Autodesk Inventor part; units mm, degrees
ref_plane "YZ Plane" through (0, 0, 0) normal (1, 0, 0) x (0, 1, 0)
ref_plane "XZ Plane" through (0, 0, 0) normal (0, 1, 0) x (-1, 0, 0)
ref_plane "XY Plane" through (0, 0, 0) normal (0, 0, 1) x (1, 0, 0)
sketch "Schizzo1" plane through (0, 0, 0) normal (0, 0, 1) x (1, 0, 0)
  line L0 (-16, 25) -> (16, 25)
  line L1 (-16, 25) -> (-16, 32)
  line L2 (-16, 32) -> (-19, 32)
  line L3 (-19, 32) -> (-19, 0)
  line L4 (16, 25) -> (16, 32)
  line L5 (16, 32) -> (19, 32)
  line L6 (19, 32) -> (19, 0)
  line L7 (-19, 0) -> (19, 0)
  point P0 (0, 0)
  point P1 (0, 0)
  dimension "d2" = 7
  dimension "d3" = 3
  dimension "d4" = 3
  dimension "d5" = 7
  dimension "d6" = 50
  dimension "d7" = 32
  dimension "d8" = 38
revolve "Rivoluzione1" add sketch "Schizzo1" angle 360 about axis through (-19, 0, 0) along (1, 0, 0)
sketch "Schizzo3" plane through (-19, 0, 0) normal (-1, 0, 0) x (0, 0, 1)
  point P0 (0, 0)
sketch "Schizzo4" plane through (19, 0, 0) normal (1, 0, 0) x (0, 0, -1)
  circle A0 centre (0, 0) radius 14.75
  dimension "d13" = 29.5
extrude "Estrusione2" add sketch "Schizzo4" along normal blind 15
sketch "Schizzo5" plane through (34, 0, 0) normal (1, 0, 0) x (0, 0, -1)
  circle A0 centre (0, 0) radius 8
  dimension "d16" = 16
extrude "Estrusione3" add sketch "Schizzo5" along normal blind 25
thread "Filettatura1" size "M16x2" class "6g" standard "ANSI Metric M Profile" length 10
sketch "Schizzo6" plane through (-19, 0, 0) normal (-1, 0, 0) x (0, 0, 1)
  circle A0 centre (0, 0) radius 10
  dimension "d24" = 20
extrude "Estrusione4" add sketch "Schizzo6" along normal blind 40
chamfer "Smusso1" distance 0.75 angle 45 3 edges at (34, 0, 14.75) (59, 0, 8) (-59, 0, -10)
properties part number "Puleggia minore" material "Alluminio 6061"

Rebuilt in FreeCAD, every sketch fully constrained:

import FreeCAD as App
import Part
import Sketcher
from FreeCAD import Vector


def edges_at(feature, points):
    """Names of the edges that pass closest to the given points."""
    edges = feature.Shape.Edges
    near = lambda p: min(range(len(edges)), key=lambda i: edges[i].distToShape(Part.Vertex(*p))[0])
    return sorted({f"Edge{near(p) + 1}" for p in points})

doc = App.newDocument("Part")
body = doc.addObject("PartDesign::Body", "Body")

# Sketch on XY plane
sketch1 = body.newObject("Sketcher::SketchObject", "Sketch")
sketch1.AttachmentSupport = (doc.getObject("XY_Plane"), [""])
sketch1.MapMode = "FlatFace"
sketch1.addGeometry([
    Part.LineSegment(Vector(16, 25, 0), Vector(-16, 25, 0)),  # 0
    Part.LineSegment(Vector(-16, 25, 0), Vector(-16, 32, 0)),  # 1
    Part.LineSegment(Vector(-16, 32, 0), Vector(-19, 32, 0)),  # 2
    Part.LineSegment(Vector(-19, 32, 0), Vector(-19, 0, 0)),  # 3
    Part.LineSegment(Vector(-19, 0, 0), Vector(19, 0, 0)),  # 4
    Part.LineSegment(Vector(19, 0, 0), Vector(19, 32, 0)),  # 5
    Part.LineSegment(Vector(19, 32, 0), Vector(16, 32, 0)),  # 6
    Part.LineSegment(Vector(16, 32, 0), Vector(16, 25, 0)),  # 7
], False)
sketch1.addConstraint([
    Sketcher.Constraint("Coincident", 0, 2, 1, 1),
    Sketcher.Constraint("Coincident", 1, 2, 2, 1),
    Sketcher.Constraint("Coincident", 2, 2, 3, 1),
    Sketcher.Constraint("Coincident", 3, 2, 4, 1),
    Sketcher.Constraint("Coincident", 4, 2, 5, 1),
    Sketcher.Constraint("Coincident", 5, 2, 6, 1),
    Sketcher.Constraint("Coincident", 6, 2, 7, 1),
    Sketcher.Constraint("Coincident", 7, 2, 0, 1),
    Sketcher.Constraint("Horizontal", 0),
    Sketcher.Constraint("Vertical", 1),
    Sketcher.Constraint("Horizontal", 2),
    Sketcher.Constraint("Vertical", 3),
    Sketcher.Constraint("Horizontal", 4),
    Sketcher.Constraint("Vertical", 5),
    Sketcher.Constraint("Horizontal", 6),
    Sketcher.Constraint("Vertical", 7),
    Sketcher.Constraint("Symmetric", 3, 2, 4, 2, -1, 1),
    Sketcher.Constraint("Symmetric", 1, 2, 6, 2, -2),
    Sketcher.Constraint("Equal", 0, 3),
    Sketcher.Constraint("DistanceX", 0, 2, 0, 1, 32.0),
    Sketcher.Constraint("DistanceX", 2, 2, 2, 1, 3.0),
    Sketcher.Constraint("DistanceY", 1, 1, 1, 2, 7.0),
])
revolution = body.newObject("PartDesign::Revolution", "Revolution")
revolution.Profile = sketch1
revolution.ReferenceAxis = (sketch1, ["H_Axis"])
revolution.Angle = 360

# Sketch on YZ plane
sketch2 = body.newObject("Sketcher::SketchObject", "Sketch001")
sketch2.AttachmentSupport = (doc.getObject("YZ_Plane"), [""])
sketch2.MapMode = "FlatFace"
sketch2.AttachmentOffset = App.Placement(Vector(0, 0, 19), App.Rotation())
sketch2.addGeometry(Part.Circle(Vector(0, 0, 0), Vector(0, 0, 1), 15), False)
sketch2.addConstraint([
    Sketcher.Constraint("Coincident", 0, 3, -1, 1),
    Sketcher.Constraint("Diameter", 0, 29.5),
])
pad1 = body.newObject("PartDesign::Pad", "Pad")
pad1.Profile = sketch2
pad1.Length = 15

# Sketch on YZ plane
sketch3 = body.newObject("Sketcher::SketchObject", "Sketch002")
sketch3.AttachmentSupport = (doc.getObject("YZ_Plane"), [""])
sketch3.MapMode = "FlatFace"
sketch3.AttachmentOffset = App.Placement(Vector(0, 0, 34), App.Rotation())
sketch3.addGeometry(Part.Circle(Vector(0, 0, 0), Vector(0, 0, 1), 8), False)
sketch3.addConstraint([
    Sketcher.Constraint("Coincident", 0, 3, -1, 1),
    Sketcher.Constraint("Diameter", 0, 16.0),
])
pad2 = body.newObject("PartDesign::Pad", "Pad001")
pad2.Profile = sketch3
pad2.Length = 25

# Sketch on YZ plane
sketch4 = body.newObject("Sketcher::SketchObject", "Sketch003")
sketch4.AttachmentSupport = (doc.getObject("YZ_Plane"), [""])
sketch4.MapMode = "FlatFace"
sketch4.AttachmentOffset = App.Placement(Vector(0, 0, -19), App.Rotation())
sketch4.addGeometry(Part.Circle(Vector(0, 0, 0), Vector(0, 0, 1), 10), False)
sketch4.addConstraint([
    Sketcher.Constraint("Coincident", 0, 3, -1, 1),
    Sketcher.Constraint("Diameter", 0, 20.0),
])
pad3 = body.newObject("PartDesign::Pad", "Pad002")
pad3.Profile = sketch4
pad3.Length = 40
pad3.Reversed = True
doc.recompute()

chamfer = body.newObject("PartDesign::Chamfer", "Chamfer")
chamfer.Base = (pad3, edges_at(pad3, [(34, 0, 14.75), (59, 0, 8), (-59, 0, -10)]))
chamfer.Size = 0.75

doc.recompute()
